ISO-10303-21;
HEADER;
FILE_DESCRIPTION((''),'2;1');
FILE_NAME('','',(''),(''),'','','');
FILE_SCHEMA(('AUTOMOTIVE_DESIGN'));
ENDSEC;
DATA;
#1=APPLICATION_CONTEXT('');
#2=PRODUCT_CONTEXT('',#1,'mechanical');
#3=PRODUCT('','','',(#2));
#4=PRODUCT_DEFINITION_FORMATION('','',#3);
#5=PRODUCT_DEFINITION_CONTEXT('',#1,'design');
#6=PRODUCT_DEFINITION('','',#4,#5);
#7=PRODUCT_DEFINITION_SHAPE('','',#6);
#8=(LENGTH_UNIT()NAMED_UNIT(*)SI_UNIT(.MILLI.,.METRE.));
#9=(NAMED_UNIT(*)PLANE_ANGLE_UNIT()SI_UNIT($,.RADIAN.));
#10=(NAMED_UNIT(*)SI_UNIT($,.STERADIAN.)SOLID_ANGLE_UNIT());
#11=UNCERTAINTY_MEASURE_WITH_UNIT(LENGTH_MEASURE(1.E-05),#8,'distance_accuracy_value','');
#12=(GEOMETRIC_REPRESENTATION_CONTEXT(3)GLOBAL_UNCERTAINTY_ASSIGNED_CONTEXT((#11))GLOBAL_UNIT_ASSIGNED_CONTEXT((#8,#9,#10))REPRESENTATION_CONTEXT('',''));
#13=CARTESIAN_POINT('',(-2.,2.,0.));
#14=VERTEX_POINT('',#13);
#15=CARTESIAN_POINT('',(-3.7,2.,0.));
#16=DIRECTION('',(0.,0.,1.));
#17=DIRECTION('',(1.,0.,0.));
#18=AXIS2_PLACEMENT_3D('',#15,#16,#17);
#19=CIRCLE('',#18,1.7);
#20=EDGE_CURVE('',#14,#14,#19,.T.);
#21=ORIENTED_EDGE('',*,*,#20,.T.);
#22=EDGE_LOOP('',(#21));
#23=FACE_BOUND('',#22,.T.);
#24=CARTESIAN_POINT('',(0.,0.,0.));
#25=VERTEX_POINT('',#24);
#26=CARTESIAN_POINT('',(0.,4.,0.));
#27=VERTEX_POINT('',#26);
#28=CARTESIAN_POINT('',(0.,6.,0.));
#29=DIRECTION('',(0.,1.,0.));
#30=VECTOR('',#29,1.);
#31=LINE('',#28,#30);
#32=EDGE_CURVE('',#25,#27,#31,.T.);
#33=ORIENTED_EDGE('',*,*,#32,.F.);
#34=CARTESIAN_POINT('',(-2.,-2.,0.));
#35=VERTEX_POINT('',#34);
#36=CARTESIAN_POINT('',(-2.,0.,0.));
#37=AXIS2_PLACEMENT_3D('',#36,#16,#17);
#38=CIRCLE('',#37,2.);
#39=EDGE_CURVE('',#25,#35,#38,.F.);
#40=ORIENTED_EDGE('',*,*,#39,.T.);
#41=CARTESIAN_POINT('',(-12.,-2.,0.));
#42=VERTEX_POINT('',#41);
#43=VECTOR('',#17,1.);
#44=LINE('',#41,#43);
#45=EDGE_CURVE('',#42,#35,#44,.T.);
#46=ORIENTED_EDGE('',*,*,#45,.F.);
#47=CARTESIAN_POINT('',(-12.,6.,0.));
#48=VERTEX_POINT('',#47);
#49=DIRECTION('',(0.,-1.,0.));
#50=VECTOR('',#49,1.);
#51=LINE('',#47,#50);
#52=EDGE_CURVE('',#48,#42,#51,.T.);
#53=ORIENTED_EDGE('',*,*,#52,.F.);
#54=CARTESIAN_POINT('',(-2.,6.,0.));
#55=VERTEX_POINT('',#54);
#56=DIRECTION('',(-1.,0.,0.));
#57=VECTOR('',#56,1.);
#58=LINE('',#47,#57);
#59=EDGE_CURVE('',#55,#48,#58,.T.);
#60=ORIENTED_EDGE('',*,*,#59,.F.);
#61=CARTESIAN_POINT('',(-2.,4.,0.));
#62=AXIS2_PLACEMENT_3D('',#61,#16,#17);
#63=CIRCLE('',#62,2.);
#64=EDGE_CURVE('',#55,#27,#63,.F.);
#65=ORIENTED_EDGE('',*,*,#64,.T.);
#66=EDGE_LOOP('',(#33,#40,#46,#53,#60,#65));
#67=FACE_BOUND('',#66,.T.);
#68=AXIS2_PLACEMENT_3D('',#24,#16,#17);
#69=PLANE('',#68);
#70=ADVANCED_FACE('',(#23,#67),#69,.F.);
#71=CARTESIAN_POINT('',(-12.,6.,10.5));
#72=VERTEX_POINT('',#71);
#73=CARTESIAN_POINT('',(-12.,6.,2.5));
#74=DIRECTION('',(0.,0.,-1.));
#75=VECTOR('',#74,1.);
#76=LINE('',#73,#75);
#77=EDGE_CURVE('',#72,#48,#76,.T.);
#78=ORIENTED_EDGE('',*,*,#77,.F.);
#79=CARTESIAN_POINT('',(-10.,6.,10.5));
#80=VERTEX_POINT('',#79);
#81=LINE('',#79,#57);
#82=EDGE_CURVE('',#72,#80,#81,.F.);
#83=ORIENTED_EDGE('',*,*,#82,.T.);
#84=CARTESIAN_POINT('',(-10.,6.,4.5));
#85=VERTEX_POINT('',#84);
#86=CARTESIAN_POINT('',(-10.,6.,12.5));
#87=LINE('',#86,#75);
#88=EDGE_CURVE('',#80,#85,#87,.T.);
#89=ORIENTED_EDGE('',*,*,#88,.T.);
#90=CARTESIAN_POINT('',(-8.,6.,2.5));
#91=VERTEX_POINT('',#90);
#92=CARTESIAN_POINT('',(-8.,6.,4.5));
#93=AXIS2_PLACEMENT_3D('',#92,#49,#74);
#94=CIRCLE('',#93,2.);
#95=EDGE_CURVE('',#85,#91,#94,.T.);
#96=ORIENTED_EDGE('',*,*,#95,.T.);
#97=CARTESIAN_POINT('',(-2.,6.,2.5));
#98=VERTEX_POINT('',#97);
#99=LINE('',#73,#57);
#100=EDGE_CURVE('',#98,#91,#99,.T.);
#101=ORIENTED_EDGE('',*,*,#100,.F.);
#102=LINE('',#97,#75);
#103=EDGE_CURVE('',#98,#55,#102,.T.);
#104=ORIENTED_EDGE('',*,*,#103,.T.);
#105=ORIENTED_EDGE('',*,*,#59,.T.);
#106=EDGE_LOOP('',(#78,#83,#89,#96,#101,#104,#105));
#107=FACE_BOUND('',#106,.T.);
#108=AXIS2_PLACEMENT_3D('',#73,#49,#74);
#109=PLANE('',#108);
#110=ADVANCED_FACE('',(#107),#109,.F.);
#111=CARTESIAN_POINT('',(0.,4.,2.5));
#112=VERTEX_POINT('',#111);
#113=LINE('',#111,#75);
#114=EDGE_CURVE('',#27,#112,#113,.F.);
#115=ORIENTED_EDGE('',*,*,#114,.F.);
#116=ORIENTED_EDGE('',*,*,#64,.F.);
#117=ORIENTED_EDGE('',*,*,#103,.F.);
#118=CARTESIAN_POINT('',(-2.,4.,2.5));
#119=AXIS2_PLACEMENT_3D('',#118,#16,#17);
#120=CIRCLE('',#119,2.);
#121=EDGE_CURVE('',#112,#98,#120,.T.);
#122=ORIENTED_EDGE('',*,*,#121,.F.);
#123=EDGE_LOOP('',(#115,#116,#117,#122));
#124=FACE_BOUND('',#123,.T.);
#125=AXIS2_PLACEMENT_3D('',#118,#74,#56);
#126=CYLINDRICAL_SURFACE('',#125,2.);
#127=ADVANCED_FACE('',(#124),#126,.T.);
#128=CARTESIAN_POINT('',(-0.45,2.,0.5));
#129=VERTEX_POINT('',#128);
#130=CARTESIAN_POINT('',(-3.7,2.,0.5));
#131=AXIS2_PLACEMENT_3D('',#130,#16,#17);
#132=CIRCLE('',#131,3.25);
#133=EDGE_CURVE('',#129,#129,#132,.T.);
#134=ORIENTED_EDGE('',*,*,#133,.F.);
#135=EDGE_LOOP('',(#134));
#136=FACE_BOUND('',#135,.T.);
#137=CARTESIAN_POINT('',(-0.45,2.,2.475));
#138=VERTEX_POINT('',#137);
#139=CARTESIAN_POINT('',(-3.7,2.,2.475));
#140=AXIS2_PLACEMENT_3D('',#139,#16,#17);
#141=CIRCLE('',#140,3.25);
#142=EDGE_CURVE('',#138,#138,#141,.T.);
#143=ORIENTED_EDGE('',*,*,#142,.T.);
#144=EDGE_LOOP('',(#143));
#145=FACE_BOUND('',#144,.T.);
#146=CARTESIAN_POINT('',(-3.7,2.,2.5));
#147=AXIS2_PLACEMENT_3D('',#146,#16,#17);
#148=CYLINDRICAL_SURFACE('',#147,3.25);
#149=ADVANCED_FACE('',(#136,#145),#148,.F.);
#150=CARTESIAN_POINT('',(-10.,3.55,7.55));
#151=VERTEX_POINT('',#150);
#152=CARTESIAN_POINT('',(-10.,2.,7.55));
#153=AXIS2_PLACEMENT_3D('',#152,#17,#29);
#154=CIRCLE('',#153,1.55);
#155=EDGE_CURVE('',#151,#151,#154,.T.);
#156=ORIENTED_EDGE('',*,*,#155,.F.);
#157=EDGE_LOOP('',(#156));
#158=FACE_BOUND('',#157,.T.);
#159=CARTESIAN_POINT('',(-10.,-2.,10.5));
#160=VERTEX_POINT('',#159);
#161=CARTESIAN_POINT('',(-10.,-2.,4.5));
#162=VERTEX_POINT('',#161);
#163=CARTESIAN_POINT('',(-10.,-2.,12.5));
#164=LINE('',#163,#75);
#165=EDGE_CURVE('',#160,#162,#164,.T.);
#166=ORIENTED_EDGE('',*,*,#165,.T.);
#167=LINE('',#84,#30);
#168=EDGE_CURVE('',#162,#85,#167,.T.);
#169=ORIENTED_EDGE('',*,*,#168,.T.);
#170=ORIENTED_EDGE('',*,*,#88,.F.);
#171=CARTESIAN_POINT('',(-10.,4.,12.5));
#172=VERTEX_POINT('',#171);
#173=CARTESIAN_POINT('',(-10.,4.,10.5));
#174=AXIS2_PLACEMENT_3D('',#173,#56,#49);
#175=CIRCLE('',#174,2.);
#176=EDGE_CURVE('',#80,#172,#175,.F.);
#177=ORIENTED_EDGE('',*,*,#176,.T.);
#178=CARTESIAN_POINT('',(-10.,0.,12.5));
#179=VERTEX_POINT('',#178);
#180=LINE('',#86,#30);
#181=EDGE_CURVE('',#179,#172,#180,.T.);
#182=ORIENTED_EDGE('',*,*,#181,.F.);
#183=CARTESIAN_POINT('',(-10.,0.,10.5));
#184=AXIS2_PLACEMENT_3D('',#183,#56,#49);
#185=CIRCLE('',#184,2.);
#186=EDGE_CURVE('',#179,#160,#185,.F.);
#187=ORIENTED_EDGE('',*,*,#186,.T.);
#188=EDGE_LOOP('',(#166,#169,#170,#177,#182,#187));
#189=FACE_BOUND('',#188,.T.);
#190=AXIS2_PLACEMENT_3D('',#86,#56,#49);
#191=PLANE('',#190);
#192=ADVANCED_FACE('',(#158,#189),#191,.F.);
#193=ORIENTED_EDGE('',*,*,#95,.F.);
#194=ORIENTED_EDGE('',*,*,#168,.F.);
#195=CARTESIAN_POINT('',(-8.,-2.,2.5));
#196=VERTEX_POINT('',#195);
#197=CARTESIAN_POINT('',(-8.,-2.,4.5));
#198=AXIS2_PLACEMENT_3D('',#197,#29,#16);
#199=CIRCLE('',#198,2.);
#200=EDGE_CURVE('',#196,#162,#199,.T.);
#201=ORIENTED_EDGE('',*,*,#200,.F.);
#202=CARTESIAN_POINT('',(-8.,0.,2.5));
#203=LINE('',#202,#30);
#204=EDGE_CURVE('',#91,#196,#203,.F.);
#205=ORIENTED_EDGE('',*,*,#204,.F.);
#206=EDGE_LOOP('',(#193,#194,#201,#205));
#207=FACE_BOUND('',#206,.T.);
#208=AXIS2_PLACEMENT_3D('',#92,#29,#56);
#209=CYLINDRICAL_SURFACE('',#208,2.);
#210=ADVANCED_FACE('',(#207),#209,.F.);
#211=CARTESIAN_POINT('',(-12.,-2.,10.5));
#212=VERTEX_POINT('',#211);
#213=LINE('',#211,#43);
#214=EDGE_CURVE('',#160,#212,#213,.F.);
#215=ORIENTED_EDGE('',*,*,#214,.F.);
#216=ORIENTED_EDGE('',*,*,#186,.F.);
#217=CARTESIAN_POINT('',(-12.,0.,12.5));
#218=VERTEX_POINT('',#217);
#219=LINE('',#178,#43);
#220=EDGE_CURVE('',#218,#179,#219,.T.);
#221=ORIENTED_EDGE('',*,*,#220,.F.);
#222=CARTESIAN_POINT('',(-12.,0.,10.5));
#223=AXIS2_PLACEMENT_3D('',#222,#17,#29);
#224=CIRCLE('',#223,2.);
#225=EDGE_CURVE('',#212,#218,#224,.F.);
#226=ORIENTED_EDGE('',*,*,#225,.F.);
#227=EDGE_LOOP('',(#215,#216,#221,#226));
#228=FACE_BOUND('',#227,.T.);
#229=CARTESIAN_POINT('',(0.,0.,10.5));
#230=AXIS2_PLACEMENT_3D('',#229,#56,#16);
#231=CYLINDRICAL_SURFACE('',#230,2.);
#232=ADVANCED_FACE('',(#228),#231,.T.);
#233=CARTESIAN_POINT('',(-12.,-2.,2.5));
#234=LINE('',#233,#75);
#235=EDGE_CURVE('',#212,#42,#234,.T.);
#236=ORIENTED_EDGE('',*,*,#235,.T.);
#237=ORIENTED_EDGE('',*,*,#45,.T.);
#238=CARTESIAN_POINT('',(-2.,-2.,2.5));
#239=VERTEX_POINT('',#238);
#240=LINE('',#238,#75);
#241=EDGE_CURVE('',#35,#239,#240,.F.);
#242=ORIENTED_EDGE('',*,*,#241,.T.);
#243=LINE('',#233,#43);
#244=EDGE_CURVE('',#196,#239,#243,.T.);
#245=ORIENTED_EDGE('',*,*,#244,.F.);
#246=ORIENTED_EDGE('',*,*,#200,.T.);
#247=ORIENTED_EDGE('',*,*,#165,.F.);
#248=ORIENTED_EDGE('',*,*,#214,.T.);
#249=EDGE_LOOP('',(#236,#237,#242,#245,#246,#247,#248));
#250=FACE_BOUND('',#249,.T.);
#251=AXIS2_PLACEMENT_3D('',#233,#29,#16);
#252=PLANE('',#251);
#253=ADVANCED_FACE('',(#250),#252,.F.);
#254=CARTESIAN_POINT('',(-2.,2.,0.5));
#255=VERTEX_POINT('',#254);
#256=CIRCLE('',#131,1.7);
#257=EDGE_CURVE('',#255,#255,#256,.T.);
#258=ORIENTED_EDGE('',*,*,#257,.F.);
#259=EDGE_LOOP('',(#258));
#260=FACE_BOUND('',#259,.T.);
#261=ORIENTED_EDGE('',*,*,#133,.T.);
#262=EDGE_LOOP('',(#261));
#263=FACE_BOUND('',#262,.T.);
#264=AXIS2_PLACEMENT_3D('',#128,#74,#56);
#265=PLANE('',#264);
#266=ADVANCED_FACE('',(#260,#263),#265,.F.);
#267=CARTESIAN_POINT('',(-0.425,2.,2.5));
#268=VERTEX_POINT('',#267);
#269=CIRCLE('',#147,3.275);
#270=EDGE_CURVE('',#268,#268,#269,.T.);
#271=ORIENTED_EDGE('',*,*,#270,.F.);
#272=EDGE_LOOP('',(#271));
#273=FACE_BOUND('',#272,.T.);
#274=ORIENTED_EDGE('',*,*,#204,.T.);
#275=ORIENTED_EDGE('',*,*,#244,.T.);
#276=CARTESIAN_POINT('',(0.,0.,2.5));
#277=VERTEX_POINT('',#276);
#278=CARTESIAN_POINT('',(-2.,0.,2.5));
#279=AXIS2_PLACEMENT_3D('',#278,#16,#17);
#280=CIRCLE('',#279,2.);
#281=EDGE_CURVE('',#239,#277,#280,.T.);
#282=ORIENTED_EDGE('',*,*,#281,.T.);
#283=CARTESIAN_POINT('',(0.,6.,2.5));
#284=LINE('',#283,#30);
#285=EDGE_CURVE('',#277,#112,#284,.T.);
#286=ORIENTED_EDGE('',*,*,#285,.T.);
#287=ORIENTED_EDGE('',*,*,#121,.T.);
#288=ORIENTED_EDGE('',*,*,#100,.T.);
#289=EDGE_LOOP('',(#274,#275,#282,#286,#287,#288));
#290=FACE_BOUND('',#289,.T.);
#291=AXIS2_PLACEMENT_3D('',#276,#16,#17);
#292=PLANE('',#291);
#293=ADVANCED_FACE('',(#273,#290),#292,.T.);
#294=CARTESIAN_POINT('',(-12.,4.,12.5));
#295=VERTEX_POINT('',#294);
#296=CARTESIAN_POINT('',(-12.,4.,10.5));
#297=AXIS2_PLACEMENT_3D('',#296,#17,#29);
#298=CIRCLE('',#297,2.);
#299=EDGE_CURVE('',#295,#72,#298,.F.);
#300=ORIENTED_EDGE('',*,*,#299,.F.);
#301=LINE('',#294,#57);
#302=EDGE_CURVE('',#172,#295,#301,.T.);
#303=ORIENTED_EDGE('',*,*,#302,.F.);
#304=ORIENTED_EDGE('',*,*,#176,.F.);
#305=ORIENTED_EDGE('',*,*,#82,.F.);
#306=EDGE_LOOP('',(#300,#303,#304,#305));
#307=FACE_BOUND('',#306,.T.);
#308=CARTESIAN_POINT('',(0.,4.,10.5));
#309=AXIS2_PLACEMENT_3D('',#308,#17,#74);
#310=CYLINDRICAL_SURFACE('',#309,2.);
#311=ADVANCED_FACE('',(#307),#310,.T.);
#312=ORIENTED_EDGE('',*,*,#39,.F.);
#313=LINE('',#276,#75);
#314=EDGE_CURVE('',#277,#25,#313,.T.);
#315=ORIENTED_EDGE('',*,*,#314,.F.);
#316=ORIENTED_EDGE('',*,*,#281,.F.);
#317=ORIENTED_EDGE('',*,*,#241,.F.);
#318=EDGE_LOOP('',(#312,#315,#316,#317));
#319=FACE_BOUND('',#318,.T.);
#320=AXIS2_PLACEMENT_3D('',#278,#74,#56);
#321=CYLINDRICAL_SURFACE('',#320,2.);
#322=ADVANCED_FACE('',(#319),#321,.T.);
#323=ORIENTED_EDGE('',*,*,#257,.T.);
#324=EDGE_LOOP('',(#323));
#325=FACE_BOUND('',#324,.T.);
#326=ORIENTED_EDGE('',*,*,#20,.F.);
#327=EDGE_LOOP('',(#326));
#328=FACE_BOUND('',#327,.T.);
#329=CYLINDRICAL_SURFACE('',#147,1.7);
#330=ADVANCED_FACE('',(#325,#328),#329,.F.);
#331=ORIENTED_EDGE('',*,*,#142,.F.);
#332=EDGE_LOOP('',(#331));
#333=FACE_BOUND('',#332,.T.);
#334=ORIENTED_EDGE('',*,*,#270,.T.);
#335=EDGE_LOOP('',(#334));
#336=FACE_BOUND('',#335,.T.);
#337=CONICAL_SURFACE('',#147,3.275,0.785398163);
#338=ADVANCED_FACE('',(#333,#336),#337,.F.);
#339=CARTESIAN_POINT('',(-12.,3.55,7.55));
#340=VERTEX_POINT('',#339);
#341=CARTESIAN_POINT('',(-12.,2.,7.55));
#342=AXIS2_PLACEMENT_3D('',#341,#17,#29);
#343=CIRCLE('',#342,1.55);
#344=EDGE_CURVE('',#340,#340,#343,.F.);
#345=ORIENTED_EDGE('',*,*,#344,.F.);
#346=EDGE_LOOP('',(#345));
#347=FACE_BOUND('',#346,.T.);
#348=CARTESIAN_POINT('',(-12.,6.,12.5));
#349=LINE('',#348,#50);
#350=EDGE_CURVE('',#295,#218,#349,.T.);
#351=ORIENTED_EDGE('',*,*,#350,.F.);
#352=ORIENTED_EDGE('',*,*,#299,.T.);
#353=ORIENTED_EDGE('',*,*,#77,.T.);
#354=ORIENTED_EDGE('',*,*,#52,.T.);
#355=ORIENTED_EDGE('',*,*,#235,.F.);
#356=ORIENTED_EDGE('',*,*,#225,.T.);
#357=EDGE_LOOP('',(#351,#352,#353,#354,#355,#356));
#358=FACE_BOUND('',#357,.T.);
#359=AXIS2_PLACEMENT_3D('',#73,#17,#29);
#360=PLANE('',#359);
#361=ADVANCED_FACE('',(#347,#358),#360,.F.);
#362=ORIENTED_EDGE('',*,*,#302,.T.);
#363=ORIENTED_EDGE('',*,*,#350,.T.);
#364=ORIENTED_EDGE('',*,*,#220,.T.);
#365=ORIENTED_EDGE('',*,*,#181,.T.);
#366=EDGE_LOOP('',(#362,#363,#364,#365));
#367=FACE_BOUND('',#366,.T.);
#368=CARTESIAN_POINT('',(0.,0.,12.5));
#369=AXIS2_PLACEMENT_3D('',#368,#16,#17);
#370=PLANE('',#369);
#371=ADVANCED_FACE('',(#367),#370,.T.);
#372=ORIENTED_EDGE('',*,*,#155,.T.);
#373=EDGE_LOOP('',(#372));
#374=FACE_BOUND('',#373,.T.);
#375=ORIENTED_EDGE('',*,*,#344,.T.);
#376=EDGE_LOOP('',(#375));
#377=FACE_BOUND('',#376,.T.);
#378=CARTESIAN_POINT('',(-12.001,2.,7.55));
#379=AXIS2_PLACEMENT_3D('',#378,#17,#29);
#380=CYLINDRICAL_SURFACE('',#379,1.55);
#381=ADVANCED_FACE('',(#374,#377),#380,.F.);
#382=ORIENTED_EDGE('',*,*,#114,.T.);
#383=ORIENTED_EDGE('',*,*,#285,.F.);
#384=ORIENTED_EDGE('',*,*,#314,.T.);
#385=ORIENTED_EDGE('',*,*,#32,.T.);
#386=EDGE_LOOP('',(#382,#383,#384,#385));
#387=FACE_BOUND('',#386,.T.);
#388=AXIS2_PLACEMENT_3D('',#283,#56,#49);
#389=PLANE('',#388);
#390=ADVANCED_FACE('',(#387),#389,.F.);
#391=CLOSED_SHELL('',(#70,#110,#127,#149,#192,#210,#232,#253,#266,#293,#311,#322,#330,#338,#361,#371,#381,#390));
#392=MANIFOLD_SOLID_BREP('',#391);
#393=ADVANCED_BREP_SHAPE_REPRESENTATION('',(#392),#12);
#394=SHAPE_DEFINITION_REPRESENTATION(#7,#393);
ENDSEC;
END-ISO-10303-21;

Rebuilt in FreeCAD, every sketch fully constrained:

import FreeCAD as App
import Part
import Sketcher
from FreeCAD import Vector
Q = App.Units.Quantity


def edges_at(feature, points):
    """Names of the edges that pass closest to the given points."""
    edges = feature.Shape.Edges
    near = lambda p: min(range(len(edges)), key=lambda i: edges[i].distToShape(Part.Vertex(*p))[0])
    return sorted({f"Edge{near(p) + 1}" for p in points})

doc = App.newDocument("Part")
body = doc.addObject("PartDesign::Body", "Body")

# Sketch on XY plane
sketch1 = doc.addObject("Sketcher::SketchObject", "Sketch")
body.addObject(sketch1)
sketch1.AttachmentSupport = (doc.XY_Plane, [""])
sketch1.MapMode = "FlatFace"
sketch1.addGeometry([
    Part.LineSegment(Vector(-12, 6, 0), Vector(-12, -2, 0)),
    Part.LineSegment(Vector(-12, -2, 0), Vector(0, -2, 0)),
    Part.LineSegment(Vector(0, -2, 0), Vector(0, 6, 0)),
    Part.LineSegment(Vector(0, 6, 0), Vector(-12, 6, 0)),
], False)
sketch1.addConstraint([
    Sketcher.Constraint("Coincident", 0, 2, 1, 1),
    Sketcher.Constraint("Coincident", 1, 2, 2, 1),
    Sketcher.Constraint("Coincident", 2, 2, 3, 1),
    Sketcher.Constraint("Coincident", 3, 2, 0, 1),
    Sketcher.Constraint("Vertical", 0),
    Sketcher.Constraint("Horizontal", 1),
    Sketcher.Constraint("Vertical", 2),
    Sketcher.Constraint("Horizontal", 3),
    Sketcher.Constraint("PointOnObject", 1, 2, -2),
    Sketcher.Constraint("DistanceX", 1, 1, 1, 2, Q("12 mm")),
    Sketcher.Constraint("DistanceY", 0, 2, 0, 1, Q("8 mm")),
    Sketcher.Constraint("DistanceY", 0, 2, -1, 1, Q("2 mm")),
])
pad1 = doc.addObject("PartDesign::Pad", "Pad")
body.addObject(pad1)
pad1.Profile = sketch1
pad1.Length = 2.5

# Sketch on XY plane
sketch2 = doc.addObject("Sketcher::SketchObject", "Sketch001")
body.addObject(sketch2)
sketch2.AttachmentSupport = (doc.XY_Plane, [""])
sketch2.MapMode = "FlatFace"
sketch2.AttachmentOffset = App.Placement(Vector(0, 0, 2.5), App.Rotation())
sketch2.addGeometry([
    Part.LineSegment(Vector(-12, 6, 0), Vector(-12, -2, 0)),
    Part.LineSegment(Vector(-12, -2, 0), Vector(-10, -2, 0)),
    Part.LineSegment(Vector(-10, -2, 0), Vector(-10, 6, 0)),
    Part.LineSegment(Vector(-10, 6, 0), Vector(-12, 6, 0)),
], False)
sketch2.addConstraint([
    Sketcher.Constraint("Coincident", 0, 2, 1, 1),
    Sketcher.Constraint("Coincident", 1, 2, 2, 1),
    Sketcher.Constraint("Coincident", 2, 2, 3, 1),
    Sketcher.Constraint("Coincident", 3, 2, 0, 1),
    Sketcher.Constraint("Vertical", 0),
    Sketcher.Constraint("Horizontal", 1),
    Sketcher.Constraint("Vertical", 2),
    Sketcher.Constraint("Horizontal", 3),
    Sketcher.Constraint("DistanceX", 1, 1, 1, 2, Q("2 mm")),
    Sketcher.Constraint("DistanceY", 0, 2, 0, 1, Q("8 mm")),
    Sketcher.Constraint("DistanceX", 0, 2, -1, 1, Q("12 mm")),
    Sketcher.Constraint("DistanceY", 0, 2, -1, 1, Q("2 mm")),
])
pad2 = doc.addObject("PartDesign::Pad", "Pad001")
body.addObject(pad2)
pad2.Profile = sketch2
pad2.Length = 10

# Sketch on YZ plane
sketch3 = doc.addObject("Sketcher::SketchObject", "Sketch002")
body.addObject(sketch3)
sketch3.AttachmentSupport = (doc.YZ_Plane, [""])
sketch3.MapMode = "FlatFace"
sketch3.AttachmentOffset = App.Placement(Vector(0, 0, -3.7), App.Rotation())
sketch3.addGeometry([
    Part.LineSegment(Vector(2, 0, 0), Vector(2, 2.5, 0)),  # 0
    Part.LineSegment(Vector(2, 2.5, 0), Vector(-1.275, 2.5, 0)),  # 1
    Part.LineSegment(Vector(-1.275, 2.5, 0), Vector(-1.25, 2.475, 0)),  # 2
    Part.LineSegment(Vector(-1.25, 2.475, 0), Vector(-1.25, 0.5, 0)),  # 3
    Part.LineSegment(Vector(-1.25, 0.5, 0), Vector(0.3, 0.5, 0)),  # 4
    Part.LineSegment(Vector(0.3, 0.5, 0), Vector(0.3, 0, 0)),  # 5
    Part.LineSegment(Vector(0.3, 0, 0), Vector(2, 0, 0)),  # 6
], False)
sketch3.addGeometry(Part.LineSegment(Vector(2, 2.5, 0), Vector(2, 0, 0)), True)  # axis
sketch3.addConstraint([
    Sketcher.Constraint("Coincident", 0, 2, 1, 1),
    Sketcher.Constraint("Coincident", 1, 2, 2, 1),
    Sketcher.Constraint("Coincident", 2, 2, 3, 1),
    Sketcher.Constraint("Coincident", 3, 2, 4, 1),
    Sketcher.Constraint("Coincident", 4, 2, 5, 1),
    Sketcher.Constraint("Coincident", 5, 2, 6, 1),
    Sketcher.Constraint("Coincident", 6, 2, 0, 1),
    Sketcher.Constraint("Vertical", 0),
    Sketcher.Constraint("Horizontal", 1),
    Sketcher.Constraint("Vertical", 3),
    Sketcher.Constraint("Horizontal", 4),
    Sketcher.Constraint("Vertical", 5),
    Sketcher.Constraint("Horizontal", 6),
    Sketcher.Constraint("Vertical", 7),
    Sketcher.Constraint("Coincident", 7, 1, 0, 2),
    Sketcher.Constraint("PointOnObject", 5, 2, -1),
    Sketcher.Constraint("PointOnObject", 7, 2, -1),
    Sketcher.Constraint("Angle", 2, Q("-45 deg")),
    Sketcher.Constraint("DistanceX", 6, 1, 6, 2, Q("1.7 mm")),
    Sketcher.Constraint("DistanceY", 0, 1, 0, 2, Q("2.5 mm")),
    Sketcher.Constraint("DistanceY", 5, 2, 5, 1, Q("0.5 mm")),
    Sketcher.Constraint("DistanceX", -1, 1, 0, 2, Q("2 mm")),
    Sketcher.Constraint("DistanceX", 4, 1, 4, 2, Q("1.55 mm")),
    Sketcher.Constraint("DistanceX", 1, 2, 1, 1, Q("3.275 mm")),
])
groove = doc.addObject("PartDesign::Groove", "Groove")
body.addObject(groove)
groove.Profile = sketch3
groove.ReferenceAxis = (sketch3, ["Axis0"])
groove.Angle = 360
doc.recompute()

fillet = doc.addObject("PartDesign::Fillet", "Fillet")
body.addObject(fillet)
fillet.Base = (groove, edges_at(groove, [(-10, 2, 2.5)]))
fillet.Radius = 2
doc.recompute()

fillet2 = doc.addObject("PartDesign::Fillet", "Fillet001")
body.addObject(fillet2)
fillet2.Base = (fillet, edges_at(fillet, [
    (-11, -2, 12.5),
    (-11, 6, 12.5),
    (0, 6, 1.25),
    (0, -2, 1.25),
]))
fillet2.Radius = 2

# Sketch on YZ plane
sketch4 = doc.addObject("Sketcher::SketchObject", "Sketch003")
body.addObject(sketch4)
sketch4.AttachmentSupport = (doc.YZ_Plane, [""])
sketch4.MapMode = "FlatFace"
sketch4.AttachmentOffset = App.Placement(Vector(0, 0, -10), App.Rotation())
sketch4.addGeometry(Part.Circle(Vector(2, 7.5, 0), Vector(0, 0, 1), 1.6), False)
sketch4.addConstraint([
    Sketcher.Constraint("Diameter", 0, Q("3.1 mm")),
    Sketcher.Constraint("DistanceX", -1, 1, 0, 3, Q("2 mm")),
    Sketcher.Constraint("DistanceY", -1, 1, 0, 3, Q("7.55 mm")),
])
pocket1 = doc.addObject("PartDesign::Pocket", "Pocket")
body.addObject(pocket1)
pocket1.Profile = sketch4
pocket1.Type = "UpToFirst"

doc.recompute()
